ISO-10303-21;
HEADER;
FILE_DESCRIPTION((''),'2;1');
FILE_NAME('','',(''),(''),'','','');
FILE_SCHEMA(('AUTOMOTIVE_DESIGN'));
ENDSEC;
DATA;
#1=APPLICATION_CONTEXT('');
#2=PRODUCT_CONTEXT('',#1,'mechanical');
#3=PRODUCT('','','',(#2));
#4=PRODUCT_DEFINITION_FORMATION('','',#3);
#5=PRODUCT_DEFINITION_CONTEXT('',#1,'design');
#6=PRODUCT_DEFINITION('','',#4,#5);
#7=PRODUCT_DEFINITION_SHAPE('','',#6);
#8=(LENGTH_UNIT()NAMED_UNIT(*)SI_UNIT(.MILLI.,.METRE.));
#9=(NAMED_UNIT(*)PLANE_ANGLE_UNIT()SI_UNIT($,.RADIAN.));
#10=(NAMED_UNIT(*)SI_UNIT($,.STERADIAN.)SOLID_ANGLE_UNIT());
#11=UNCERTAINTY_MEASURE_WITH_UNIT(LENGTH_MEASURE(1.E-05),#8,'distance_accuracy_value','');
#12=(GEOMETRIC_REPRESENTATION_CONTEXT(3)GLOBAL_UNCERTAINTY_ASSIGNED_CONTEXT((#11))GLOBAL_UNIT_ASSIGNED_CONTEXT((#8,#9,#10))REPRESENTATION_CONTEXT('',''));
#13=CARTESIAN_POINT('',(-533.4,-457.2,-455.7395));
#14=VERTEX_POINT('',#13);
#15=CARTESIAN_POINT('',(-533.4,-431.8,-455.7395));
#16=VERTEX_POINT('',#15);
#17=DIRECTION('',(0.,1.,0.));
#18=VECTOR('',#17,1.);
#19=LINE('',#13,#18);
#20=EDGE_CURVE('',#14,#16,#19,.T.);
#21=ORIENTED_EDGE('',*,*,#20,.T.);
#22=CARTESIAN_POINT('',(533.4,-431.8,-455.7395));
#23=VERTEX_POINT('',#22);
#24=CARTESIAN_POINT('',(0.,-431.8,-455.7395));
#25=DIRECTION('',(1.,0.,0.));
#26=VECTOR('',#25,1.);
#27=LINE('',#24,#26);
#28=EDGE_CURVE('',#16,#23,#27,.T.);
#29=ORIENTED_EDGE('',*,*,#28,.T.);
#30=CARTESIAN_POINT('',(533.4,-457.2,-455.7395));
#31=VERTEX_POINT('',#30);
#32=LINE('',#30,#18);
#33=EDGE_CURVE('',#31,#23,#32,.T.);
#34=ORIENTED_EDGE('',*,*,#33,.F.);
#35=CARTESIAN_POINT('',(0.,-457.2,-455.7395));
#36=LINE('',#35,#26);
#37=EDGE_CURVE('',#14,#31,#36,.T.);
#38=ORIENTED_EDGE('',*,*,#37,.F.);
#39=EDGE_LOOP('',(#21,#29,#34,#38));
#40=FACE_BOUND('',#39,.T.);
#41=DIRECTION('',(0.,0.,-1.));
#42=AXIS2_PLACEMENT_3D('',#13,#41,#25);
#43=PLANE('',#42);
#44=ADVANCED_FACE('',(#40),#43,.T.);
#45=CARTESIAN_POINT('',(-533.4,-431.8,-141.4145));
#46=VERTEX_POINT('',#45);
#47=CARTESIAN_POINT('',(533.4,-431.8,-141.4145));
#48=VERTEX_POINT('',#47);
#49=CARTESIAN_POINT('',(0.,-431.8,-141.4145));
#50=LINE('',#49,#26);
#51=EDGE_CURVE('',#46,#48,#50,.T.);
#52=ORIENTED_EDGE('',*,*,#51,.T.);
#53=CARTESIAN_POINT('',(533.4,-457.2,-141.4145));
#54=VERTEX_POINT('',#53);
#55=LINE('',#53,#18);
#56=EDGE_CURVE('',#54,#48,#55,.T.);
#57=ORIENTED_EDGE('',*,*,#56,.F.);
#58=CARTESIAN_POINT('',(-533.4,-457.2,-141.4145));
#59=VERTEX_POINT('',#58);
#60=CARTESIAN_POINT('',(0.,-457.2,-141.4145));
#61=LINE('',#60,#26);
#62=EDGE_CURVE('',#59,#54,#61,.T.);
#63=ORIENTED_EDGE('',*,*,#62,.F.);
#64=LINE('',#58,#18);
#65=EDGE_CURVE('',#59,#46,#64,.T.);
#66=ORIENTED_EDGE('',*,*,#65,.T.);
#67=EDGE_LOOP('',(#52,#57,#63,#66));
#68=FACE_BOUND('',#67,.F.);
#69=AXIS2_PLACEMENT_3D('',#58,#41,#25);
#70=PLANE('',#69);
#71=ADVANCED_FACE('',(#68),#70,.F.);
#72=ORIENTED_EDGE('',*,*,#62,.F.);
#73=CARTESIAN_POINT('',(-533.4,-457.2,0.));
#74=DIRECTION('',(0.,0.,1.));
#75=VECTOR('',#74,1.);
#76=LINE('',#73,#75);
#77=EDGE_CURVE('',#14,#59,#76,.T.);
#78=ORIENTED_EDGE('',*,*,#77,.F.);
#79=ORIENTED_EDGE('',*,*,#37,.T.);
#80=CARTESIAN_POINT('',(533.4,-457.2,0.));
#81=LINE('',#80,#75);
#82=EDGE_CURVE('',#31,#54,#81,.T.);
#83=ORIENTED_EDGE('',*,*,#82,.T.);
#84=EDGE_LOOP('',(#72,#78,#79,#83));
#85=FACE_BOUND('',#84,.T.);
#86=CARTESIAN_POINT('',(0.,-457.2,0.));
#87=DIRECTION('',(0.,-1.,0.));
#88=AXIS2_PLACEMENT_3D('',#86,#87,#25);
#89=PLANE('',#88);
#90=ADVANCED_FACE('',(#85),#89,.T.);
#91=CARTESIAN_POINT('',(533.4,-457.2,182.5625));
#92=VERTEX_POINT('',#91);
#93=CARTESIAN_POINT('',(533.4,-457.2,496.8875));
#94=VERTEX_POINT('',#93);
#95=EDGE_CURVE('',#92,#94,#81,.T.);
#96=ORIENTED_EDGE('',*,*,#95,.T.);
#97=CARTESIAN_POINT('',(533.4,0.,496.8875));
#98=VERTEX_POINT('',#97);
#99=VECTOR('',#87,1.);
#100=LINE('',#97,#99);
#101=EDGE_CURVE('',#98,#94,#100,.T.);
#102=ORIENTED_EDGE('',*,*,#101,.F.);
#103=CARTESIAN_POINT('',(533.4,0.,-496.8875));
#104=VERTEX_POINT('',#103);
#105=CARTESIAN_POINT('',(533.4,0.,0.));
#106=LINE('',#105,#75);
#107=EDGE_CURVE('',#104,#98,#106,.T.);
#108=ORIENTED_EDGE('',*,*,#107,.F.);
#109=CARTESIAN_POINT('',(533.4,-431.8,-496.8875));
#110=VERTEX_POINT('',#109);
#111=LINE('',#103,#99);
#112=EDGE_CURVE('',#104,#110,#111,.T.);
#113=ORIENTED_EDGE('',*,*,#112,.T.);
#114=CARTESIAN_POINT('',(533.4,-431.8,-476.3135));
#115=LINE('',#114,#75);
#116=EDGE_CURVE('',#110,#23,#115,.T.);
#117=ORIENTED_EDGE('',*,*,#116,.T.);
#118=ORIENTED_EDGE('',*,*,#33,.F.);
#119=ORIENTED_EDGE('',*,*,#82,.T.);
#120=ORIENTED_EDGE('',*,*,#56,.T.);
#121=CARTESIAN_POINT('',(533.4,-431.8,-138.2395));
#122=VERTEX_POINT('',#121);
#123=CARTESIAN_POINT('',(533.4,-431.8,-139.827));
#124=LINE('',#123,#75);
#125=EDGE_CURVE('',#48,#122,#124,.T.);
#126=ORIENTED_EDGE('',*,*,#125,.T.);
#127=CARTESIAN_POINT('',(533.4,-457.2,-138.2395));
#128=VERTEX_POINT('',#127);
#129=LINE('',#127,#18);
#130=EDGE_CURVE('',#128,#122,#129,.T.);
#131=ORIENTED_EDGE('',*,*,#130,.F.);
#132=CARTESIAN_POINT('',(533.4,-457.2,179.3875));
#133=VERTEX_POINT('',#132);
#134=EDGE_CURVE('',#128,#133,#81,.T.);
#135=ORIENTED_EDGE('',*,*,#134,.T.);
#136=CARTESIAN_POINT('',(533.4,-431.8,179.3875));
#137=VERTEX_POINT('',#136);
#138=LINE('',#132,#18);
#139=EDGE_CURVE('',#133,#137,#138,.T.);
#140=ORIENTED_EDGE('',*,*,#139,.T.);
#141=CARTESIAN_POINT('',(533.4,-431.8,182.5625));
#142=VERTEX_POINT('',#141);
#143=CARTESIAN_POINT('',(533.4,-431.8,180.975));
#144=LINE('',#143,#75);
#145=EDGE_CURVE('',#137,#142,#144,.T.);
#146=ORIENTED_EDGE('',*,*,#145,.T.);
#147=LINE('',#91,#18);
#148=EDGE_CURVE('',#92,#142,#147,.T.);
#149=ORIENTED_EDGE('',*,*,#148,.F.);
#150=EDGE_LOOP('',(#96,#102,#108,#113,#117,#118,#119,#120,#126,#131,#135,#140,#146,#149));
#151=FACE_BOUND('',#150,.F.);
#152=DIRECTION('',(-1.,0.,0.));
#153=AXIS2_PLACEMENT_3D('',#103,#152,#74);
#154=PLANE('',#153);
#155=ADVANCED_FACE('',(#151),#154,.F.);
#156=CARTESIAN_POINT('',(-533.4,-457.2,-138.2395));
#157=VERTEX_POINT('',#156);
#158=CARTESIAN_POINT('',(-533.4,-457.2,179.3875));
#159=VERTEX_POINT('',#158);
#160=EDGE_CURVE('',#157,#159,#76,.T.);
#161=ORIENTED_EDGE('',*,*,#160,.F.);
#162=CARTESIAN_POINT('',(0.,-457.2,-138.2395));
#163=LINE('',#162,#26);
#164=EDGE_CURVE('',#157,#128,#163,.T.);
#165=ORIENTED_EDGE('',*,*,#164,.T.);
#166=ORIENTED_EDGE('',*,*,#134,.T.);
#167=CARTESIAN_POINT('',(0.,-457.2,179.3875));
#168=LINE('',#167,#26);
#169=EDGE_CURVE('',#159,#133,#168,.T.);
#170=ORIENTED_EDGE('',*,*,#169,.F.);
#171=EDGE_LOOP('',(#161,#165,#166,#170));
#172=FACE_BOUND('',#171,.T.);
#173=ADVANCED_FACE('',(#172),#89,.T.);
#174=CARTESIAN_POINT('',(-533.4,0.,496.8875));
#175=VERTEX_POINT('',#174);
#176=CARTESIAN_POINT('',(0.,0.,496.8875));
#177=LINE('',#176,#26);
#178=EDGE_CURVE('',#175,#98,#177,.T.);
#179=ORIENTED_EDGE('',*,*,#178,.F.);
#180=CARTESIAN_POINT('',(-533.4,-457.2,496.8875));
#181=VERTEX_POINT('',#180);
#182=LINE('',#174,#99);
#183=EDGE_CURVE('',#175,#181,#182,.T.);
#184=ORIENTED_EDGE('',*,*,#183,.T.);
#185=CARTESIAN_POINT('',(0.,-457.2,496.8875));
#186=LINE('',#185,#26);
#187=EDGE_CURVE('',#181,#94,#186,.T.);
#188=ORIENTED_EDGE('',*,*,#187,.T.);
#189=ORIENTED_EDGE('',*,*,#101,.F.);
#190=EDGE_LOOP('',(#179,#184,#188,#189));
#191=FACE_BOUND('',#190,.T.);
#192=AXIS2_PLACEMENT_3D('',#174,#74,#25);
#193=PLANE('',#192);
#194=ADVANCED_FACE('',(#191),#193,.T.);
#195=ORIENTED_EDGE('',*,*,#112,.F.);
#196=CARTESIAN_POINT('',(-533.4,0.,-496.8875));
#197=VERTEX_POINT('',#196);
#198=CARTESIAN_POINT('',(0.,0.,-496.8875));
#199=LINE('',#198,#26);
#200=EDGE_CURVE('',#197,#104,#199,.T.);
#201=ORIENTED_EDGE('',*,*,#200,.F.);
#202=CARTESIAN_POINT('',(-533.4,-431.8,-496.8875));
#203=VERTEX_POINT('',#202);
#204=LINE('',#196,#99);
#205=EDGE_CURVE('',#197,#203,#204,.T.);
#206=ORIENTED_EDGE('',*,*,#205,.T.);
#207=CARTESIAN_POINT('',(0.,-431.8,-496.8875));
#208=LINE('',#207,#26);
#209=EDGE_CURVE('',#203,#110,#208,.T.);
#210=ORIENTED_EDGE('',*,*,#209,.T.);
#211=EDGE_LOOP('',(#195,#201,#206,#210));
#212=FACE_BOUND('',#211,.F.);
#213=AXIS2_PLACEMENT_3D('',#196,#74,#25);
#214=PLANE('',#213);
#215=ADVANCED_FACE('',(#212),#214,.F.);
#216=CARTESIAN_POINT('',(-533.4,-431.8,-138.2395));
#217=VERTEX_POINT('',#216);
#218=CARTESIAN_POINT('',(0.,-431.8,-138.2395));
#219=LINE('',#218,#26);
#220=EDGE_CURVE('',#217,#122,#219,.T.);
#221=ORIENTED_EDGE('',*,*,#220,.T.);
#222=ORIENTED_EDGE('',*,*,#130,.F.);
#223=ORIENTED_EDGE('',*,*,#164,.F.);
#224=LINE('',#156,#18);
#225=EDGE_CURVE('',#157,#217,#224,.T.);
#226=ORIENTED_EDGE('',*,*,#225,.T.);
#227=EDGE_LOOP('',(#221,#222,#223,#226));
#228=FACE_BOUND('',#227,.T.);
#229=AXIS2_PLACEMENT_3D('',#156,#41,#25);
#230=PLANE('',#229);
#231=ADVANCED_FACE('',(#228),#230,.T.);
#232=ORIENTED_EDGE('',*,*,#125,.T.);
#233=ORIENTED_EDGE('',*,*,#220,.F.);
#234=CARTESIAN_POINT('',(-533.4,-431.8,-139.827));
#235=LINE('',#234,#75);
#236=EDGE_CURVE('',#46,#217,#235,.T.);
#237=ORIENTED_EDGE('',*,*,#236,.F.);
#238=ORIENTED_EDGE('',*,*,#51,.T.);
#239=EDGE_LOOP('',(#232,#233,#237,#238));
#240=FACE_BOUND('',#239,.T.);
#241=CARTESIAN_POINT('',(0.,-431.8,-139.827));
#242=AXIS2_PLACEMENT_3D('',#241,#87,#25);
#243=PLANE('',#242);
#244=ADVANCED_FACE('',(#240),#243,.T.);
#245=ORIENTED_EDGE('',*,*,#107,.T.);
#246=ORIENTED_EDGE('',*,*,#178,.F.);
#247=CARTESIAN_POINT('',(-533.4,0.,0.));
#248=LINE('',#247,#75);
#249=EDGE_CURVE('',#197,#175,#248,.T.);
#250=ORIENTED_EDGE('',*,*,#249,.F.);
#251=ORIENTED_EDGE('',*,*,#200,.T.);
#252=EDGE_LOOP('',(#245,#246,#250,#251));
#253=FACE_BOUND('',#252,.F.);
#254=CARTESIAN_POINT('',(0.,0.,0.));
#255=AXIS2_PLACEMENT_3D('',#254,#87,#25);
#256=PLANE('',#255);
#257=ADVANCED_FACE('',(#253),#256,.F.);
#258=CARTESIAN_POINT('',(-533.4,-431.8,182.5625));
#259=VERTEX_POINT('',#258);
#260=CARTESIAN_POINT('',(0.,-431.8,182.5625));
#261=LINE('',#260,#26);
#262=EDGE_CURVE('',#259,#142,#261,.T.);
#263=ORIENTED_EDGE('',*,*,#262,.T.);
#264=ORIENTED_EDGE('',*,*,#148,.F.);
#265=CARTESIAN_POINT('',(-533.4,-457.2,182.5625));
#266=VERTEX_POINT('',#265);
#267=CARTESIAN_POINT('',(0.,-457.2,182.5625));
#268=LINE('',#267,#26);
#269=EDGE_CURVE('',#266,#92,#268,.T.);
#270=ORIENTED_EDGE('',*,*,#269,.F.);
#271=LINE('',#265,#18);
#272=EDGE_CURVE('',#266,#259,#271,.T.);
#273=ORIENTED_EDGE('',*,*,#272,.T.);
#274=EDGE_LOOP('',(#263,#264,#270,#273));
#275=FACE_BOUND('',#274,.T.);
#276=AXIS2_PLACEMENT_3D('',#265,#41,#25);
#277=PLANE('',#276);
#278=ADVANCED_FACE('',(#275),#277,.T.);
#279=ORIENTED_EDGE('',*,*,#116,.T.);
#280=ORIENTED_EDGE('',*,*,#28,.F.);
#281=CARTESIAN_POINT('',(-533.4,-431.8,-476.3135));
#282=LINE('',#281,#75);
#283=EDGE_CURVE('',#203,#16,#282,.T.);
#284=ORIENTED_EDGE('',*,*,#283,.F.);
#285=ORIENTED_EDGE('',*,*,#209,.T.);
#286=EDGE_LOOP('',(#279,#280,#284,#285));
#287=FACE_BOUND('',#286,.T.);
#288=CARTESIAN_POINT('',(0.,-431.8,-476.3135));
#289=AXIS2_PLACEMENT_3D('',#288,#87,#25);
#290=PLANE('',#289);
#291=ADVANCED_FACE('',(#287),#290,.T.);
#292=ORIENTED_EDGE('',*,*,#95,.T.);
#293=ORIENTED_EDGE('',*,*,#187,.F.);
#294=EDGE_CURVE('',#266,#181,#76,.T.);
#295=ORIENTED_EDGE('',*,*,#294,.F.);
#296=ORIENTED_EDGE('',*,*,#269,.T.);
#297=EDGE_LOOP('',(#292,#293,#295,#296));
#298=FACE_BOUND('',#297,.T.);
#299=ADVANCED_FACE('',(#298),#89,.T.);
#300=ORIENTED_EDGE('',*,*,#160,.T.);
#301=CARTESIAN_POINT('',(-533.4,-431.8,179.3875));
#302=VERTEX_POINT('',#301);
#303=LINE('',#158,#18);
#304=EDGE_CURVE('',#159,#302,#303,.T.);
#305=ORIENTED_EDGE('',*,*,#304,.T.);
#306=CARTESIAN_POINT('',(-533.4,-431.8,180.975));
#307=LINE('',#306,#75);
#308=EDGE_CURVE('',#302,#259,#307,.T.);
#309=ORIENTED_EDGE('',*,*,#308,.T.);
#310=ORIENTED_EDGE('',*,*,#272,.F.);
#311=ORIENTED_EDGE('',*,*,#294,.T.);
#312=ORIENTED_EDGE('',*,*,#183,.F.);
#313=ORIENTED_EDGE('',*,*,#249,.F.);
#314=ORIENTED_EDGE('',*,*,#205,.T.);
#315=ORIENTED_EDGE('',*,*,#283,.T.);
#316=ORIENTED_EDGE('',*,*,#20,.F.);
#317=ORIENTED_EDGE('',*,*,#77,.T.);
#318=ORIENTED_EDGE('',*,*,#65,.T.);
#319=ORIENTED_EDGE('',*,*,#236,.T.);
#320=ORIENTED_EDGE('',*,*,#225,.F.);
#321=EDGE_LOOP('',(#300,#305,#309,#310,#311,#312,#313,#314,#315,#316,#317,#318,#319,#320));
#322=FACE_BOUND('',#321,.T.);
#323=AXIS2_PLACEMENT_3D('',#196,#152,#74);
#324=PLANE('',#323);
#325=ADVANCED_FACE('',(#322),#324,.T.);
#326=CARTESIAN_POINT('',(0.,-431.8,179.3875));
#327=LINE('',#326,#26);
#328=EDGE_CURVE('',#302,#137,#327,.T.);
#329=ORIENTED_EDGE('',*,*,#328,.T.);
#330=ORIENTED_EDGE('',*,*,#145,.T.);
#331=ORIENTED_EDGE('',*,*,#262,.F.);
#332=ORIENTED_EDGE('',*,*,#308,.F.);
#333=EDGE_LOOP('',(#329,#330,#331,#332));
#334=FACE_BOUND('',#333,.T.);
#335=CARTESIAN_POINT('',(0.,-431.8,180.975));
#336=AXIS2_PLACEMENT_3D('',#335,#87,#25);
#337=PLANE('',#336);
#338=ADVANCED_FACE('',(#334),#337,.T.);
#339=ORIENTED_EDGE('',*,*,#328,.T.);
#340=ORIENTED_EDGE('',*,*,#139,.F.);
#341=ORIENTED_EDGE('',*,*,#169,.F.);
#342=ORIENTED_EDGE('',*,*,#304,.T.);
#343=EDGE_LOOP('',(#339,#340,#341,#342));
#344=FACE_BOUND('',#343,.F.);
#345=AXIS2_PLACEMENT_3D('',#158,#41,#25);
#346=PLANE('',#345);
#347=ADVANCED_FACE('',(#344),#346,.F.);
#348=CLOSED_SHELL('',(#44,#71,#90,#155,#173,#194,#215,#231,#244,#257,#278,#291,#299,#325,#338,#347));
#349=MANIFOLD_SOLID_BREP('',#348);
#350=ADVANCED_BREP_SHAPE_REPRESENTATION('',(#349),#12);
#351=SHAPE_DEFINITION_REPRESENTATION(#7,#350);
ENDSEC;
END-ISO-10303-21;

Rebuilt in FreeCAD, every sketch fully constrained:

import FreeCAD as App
import Part
import Sketcher
Q = App.Units.Quantity


def add_polygon(sketch, points):
    """Adds a closed chain of lines whose ends are joined by coincident constraints."""
    first, n = sketch.GeometryCount, len(points)
    for a, b in zip(points, points[1:] + points[:1]):
        sketch.addGeometry(Part.LineSegment(App.Vector(*a, 0), App.Vector(*b, 0)), False)
    for i in range(n):
        sketch.addConstraint(Sketcher.Constraint("Coincident", first + i, 2, first + (i + 1) % n, 1))

doc = App.newDocument("Part")
body = doc.addObject("PartDesign::Body", "Body")

# Sketch on XZ plane
sketch1 = body.newObject("Sketcher::SketchObject", "Sketch")
sketch1.AttachmentSupport = (doc.getObject("XZ_Plane"), [""])
sketch1.MapMode = "FlatFace"
add_polygon(sketch1, [(-533.4, 496.8875), (-533.4, -496.8875), (533.4, -496.8875), (533.4, 496.8875)])  # lines 0-3
sketch1.addConstraint([
    Sketcher.Constraint("Vertical", 0),
    Sketcher.Constraint("Horizontal", 1),
    Sketcher.Constraint("Vertical", 2),
    Sketcher.Constraint("Horizontal", 3),
    Sketcher.Constraint("Symmetric", 0, 2, 2, 2, -1, 1),
    Sketcher.Constraint("DistanceX", 1, 1, 1, 2, Q("42 in")),
    Sketcher.Constraint("DistanceY", 0, 2, 0, 1, Q("39.125 in")),
])
pad1 = body.newObject("PartDesign::Pad", "Pad")
pad1.Profile = sketch1
pad1.Length = Q("18 in")

# Sketch on XZ plane
sketch2 = body.newObject("Sketcher::SketchObject", "Sketch001")
sketch2.AttachmentSupport = (doc.getObject("XZ_Plane"), [""])
sketch2.MapMode = "FlatFace"
sketch2.AttachmentOffset = App.Placement(App.Vector(0, 0, 18 * 25.4), App.Rotation())
add_polygon(sketch2, [(-533.4, 182.5625), (-533.4, 179.3875), (533.4, 179.3875), (533.4, 182.5625)])  # lines 0-3
add_polygon(sketch2, [(-533.4, -138.2395), (-533.4, -141.4145), (533.4, -141.4145), (533.4, -138.2395)])  # lines 4-7
add_polygon(sketch2, [(-533.4, -455.7395), (-533.4, -496.8875), (533.4, -496.8875), (533.4, -455.7395)])  # lines 8-11
sketch2.addConstraint([
    Sketcher.Constraint("Vertical", 0),
    Sketcher.Constraint("Horizontal", 1),
    Sketcher.Constraint("Vertical", 2),
    Sketcher.Constraint("Horizontal", 3),
    Sketcher.Constraint("Vertical", 4),
    Sketcher.Constraint("Horizontal", 5),
    Sketcher.Constraint("Vertical", 6),
    Sketcher.Constraint("Horizontal", 7),
    Sketcher.Constraint("Vertical", 8),
    Sketcher.Constraint("Horizontal", 9),
    Sketcher.Constraint("Vertical", 10),
    Sketcher.Constraint("Horizontal", 11),
    Sketcher.Constraint("Vertical", 3, 2, 4, 2),
    Sketcher.Constraint("Vertical", 2, 2, 5, 2),
    Sketcher.Constraint("Vertical", 7, 2, 8, 2),
    Sketcher.Constraint("Vertical", 6, 2, 9, 2),
    Sketcher.Constraint("Equal", 2, 4),
    Sketcher.Constraint("DistanceX", 1, 1, 1, 2, Q("42 in")),
    Sketcher.Constraint("DistanceX", 0, 2, -1, 1, Q("21 in")),
    Sketcher.Constraint("DistanceY", 8, 2, 8, 1, Q("1.62 in")),
    Sketcher.Constraint("DistanceY", 10, 2, 6, 2, Q("12.5 in")),
    Sketcher.Constraint("DistanceY", 0, 2, 0, 1, Q("0.125 in")),
    Sketcher.Constraint("DistanceY", 4, 2, 0, 2, Q("12.63 in")),
    Sketcher.Constraint("DistanceY", -1, 1, 0, 2, Q("7.0625 in")),
])
pocket1 = body.newObject("PartDesign::Pocket", "Pocket")
pocket1.Profile = sketch2
pocket1.Length = Q("1 in")

doc.recompute()
